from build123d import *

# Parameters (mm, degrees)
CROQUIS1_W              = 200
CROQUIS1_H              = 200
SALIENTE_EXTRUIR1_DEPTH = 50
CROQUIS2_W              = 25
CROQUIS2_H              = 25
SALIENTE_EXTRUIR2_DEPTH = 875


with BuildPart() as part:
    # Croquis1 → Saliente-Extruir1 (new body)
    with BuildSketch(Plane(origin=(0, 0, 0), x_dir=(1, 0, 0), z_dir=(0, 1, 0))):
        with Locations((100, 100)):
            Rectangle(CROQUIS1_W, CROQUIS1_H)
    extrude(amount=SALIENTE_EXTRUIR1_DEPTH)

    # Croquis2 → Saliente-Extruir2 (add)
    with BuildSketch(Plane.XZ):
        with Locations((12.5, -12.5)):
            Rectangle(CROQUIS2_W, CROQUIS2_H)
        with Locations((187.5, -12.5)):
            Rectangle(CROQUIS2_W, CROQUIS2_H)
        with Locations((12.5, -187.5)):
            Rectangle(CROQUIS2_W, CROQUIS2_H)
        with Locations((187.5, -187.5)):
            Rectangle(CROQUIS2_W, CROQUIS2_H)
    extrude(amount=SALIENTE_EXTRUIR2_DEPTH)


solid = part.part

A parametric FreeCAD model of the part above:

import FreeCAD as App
import Part
import Sketcher

doc = App.newDocument("Part")
body = doc.addObject("PartDesign::Body", "Body")

# Sketch on XZ plane
sketch1 = body.newObject("Sketcher::SketchObject", "Sketch")
sketch1.AttachmentSupport = (doc.getObject("XZ_Plane"), [""])
sketch1.MapMode = "FlatFace"
sketch1.addGeometry([
    Part.LineSegment(App.Vector(0, -200, 0), App.Vector(0, 0, 0)),
    Part.LineSegment(App.Vector(0, 0, 0), App.Vector(200, 0, 0)),
    Part.LineSegment(App.Vector(200, 0, 0), App.Vector(200, -200, 0)),
    Part.LineSegment(App.Vector(200, -200, 0), App.Vector(0, -200, 0)),
], False)
sketch1.addConstraint([
    Sketcher.Constraint("Coincident", 0, 2, 1, 1),
    Sketcher.Constraint("Coincident", 1, 2, 2, 1),
    Sketcher.Constraint("Coincident", 2, 2, 3, 1),
    Sketcher.Constraint("Coincident", 3, 2, 0, 1),
    Sketcher.Constraint("Vertical", 0),
    Sketcher.Constraint("Horizontal", 1),
    Sketcher.Constraint("Vertical", 2),
    Sketcher.Constraint("Horizontal", 3),
    Sketcher.Constraint("Coincident", 0, 2, -1, 1),
    Sketcher.Constraint("Equal", 3, 0),
    Sketcher.Constraint("DistanceX", 1, 1, 1, 2, 200.0),
])
pad1 = body.newObject("PartDesign::Pad", "Pad")
pad1.Profile = sketch1
pad1.Length = 50
pad1.Reversed = True

# Sketch on XZ plane
sketch2 = body.newObject("Sketcher::SketchObject", "Sketch001")
sketch2.AttachmentSupport = (doc.getObject("XZ_Plane"), [""])
sketch2.MapMode = "FlatFace"
sketch2.addGeometry([
    Part.LineSegment(App.Vector(0, 0, 0), App.Vector(0, -25, 0)),  # 0
    Part.LineSegment(App.Vector(0, -25, 0), App.Vector(25, -25, 0)),  # 1
    Part.LineSegment(App.Vector(25, -25, 0), App.Vector(25, 0, 0)),  # 2
    Part.LineSegment(App.Vector(25, 0, 0), App.Vector(0, 0, 0)),  # 3
    Part.LineSegment(App.Vector(175, 0, 0), App.Vector(175, -25, 0)),  # 4
    Part.LineSegment(App.Vector(175, -25, 0), App.Vector(200, -25, 0)),  # 5
    Part.LineSegment(App.Vector(200, -25, 0), App.Vector(200, 0, 0)),  # 6
    Part.LineSegment(App.Vector(200, 0, 0), App.Vector(175, 0, 0)),  # 7
    Part.LineSegment(App.Vector(0, -175, 0), App.Vector(0, -200, 0)),  # 8
    Part.LineSegment(App.Vector(0, -200, 0), App.Vector(25, -200, 0)),  # 9
    Part.LineSegment(App.Vector(25, -200, 0), App.Vector(25, -175, 0)),  # 10
    Part.LineSegment(App.Vector(25, -175, 0), App.Vector(0, -175, 0)),  # 11
    Part.LineSegment(App.Vector(175, -175, 0), App.Vector(175, -200, 0)),  # 12
    Part.LineSegment(App.Vector(175, -200, 0), App.Vector(200, -200, 0)),  # 13
    Part.LineSegment(App.Vector(200, -200, 0), App.Vector(200, -175, 0)),  # 14
    Part.LineSegment(App.Vector(200, -175, 0), App.Vector(175, -175, 0)),  # 15
], False)
sketch2.addConstraint([
    Sketcher.Constraint("Coincident", 0, 2, 1, 1),
    Sketcher.Constraint("Coincident", 1, 2, 2, 1),
    Sketcher.Constraint("Coincident", 2, 2, 3, 1),
    Sketcher.Constraint("Coincident", 3, 2, 0, 1),
    Sketcher.Constraint("Coincident", 4, 2, 5, 1),
    Sketcher.Constraint("Coincident", 5, 2, 6, 1),
    Sketcher.Constraint("Coincident", 6, 2, 7, 1),
    Sketcher.Constraint("Coincident", 7, 2, 4, 1),
    Sketcher.Constraint("Coincident", 8, 2, 9, 1),
    Sketcher.Constraint("Coincident", 9, 2, 10, 1),
    Sketcher.Constraint("Coincident", 10, 2, 11, 1),
    Sketcher.Constraint("Coincident", 11, 2, 8, 1),
    Sketcher.Constraint("Coincident", 12, 2, 13, 1),
    Sketcher.Constraint("Coincident", 13, 2, 14, 1),
    Sketcher.Constraint("Coincident", 14, 2, 15, 1),
    Sketcher.Constraint("Coincident", 15, 2, 12, 1),
    Sketcher.Constraint("Vertical", 0),
    Sketcher.Constraint("Horizontal", 1),
    Sketcher.Constraint("Vertical", 2),
    Sketcher.Constraint("Horizontal", 3),
    Sketcher.Constraint("Vertical", 4),
    Sketcher.Constraint("Horizontal", 5),
    Sketcher.Constraint("Vertical", 6),
    Sketcher.Constraint("Horizontal", 7),
    Sketcher.Constraint("Vertical", 8),
    Sketcher.Constraint("Horizontal", 9),
    Sketcher.Constraint("Vertical", 10),
    Sketcher.Constraint("Horizontal", 11),
    Sketcher.Constraint("Vertical", 12),
    Sketcher.Constraint("Horizontal", 13),
    Sketcher.Constraint("Vertical", 14),
    Sketcher.Constraint("Horizontal", 15),
    Sketcher.Constraint("Coincident", 3, 2, -1, 1),
    Sketcher.Constraint("PointOnObject", 6, 2, -1),
    Sketcher.Constraint("PointOnObject", 8, 2, -2),
    Sketcher.Constraint("Horizontal", 1, 2, 4, 2),
    Sketcher.Constraint("Horizontal", 9, 2, 12, 2),
    Sketcher.Constraint("Horizontal", 11, 2, 14, 2),
    Sketcher.Constraint("Vertical", 2, 2, 9, 2),
    Sketcher.Constraint("Vertical", 7, 2, 12, 2),
    Sketcher.Constraint("Vertical", 6, 2, 13, 2),
    Sketcher.Constraint("Equal", 3, 5),
    Sketcher.Constraint("Equal", 15, 0),
    Sketcher.Constraint("Equal", 6, 8),
    Sketcher.Constraint("DistanceX", 1, 1, 1, 2, 25.0),
    Sketcher.Constraint("DistanceX", -1, 1, 4, 2, 175.0),
    Sketcher.Constraint("DistanceY", 8, 2, -1, 1, 200.0),
])
pad2 = body.newObject("PartDesign::Pad", "Pad001")
pad2.Profile = sketch2
pad2.Length = 875

doc.recompute()
